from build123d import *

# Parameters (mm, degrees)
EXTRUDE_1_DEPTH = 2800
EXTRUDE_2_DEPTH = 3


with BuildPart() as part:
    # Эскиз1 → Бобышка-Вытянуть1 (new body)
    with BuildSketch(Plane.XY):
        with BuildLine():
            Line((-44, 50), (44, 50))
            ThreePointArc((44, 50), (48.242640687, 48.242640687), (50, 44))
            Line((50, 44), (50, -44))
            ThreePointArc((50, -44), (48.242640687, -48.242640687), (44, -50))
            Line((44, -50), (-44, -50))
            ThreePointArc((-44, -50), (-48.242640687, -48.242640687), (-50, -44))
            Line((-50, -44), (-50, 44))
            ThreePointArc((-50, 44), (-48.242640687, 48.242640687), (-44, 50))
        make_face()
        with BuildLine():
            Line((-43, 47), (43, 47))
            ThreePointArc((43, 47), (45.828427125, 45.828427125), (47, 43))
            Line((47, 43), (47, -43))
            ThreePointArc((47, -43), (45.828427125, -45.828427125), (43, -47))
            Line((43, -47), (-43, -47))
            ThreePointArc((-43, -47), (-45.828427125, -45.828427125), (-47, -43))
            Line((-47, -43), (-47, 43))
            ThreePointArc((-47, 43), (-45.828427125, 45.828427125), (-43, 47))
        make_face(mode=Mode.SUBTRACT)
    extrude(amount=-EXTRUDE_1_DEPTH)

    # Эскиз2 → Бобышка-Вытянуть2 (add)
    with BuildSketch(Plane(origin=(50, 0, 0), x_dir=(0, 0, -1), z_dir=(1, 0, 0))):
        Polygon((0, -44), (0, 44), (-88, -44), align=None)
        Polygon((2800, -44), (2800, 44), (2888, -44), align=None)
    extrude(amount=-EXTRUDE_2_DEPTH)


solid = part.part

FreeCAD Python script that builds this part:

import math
import FreeCAD as App
import Part
import Sketcher

doc = App.newDocument("Part")
params = doc.addObject("Spreadsheet::Sheet", "Params")
for row, (alias, value) in enumerate([
    ("sketch1_radius", "6 mm"),
    ("sketch1_radius2", "4 mm"),
    ("sketch1_width", "88 mm"),
    ("sketch1_width2", "86 mm"),
    ("pad1_length", "2800 mm"),
    ("sketch2_width", "88 mm"),
    ("pad2_length", "3 mm"),
], start=1):
    params.set(f"A{row}", alias)
    params.set(f"B{row}", "=" + value)
    params.setAlias(f"B{row}", alias)

body = doc.addObject("PartDesign::Body", "Body")

sketch1 = body.newObject("Sketcher::SketchObject", "Sketch")
sketch1.AttachmentSupport = (doc.getObject("XY_Plane"), [""])
sketch1.MapMode = "FlatFace"
sketch1.addGeometry(Part.LineSegment(App.Vector(44, 50, 0), App.Vector(-44, 50, 0)), False)
sketch1.addGeometry(Part.ArcOfCircle(Part.Circle(App.Vector(-44, 44, 0), App.Vector(0, 0, 1), 6), math.radians(90), math.radians(180)), False)
sketch1.addGeometry(Part.LineSegment(App.Vector(-50, 44, 0), App.Vector(-50, -44, 0)), False)
sketch1.addGeometry(Part.ArcOfCircle(Part.Circle(App.Vector(-44, -44, 0), App.Vector(0, 0, 1), 6), math.radians(180), math.radians(270)), False)
sketch1.addGeometry(Part.LineSegment(App.Vector(-44, -50, 0), App.Vector(44, -50, 0)), False)
sketch1.addGeometry(Part.ArcOfCircle(Part.Circle(App.Vector(44, -44, 0), App.Vector(0, 0, 1), 6), math.radians(-90), math.radians(0)), False)
sketch1.addGeometry(Part.LineSegment(App.Vector(50, -44, 0), App.Vector(50, 44, 0)), False)
sketch1.addGeometry(Part.ArcOfCircle(Part.Circle(App.Vector(44, 44, 0), App.Vector(0, 0, 1), 6), math.radians(0), math.radians(90)), False)
sketch1.addGeometry(Part.LineSegment(App.Vector(-43, 47, 0), App.Vector(43, 47, 0)), False)
sketch1.addGeometry(Part.ArcOfCircle(Part.Circle(App.Vector(43, 43, 0), App.Vector(0, 0, 1), 4), math.radians(0), math.radians(90)), False)
sketch1.addGeometry(Part.LineSegment(App.Vector(47, 43, 0), App.Vector(47, -43, 0)), False)
sketch1.addGeometry(Part.ArcOfCircle(Part.Circle(App.Vector(43, -43, 0), App.Vector(0, 0, 1), 4), math.radians(-90), math.radians(0)), False)
sketch1.addGeometry(Part.LineSegment(App.Vector(43, -47, 0), App.Vector(-43, -47, 0)), False)
sketch1.addGeometry(Part.ArcOfCircle(Part.Circle(App.Vector(-43, -43, 0), App.Vector(0, 0, 1), 4), math.radians(180), math.radians(270)), False)
sketch1.addGeometry(Part.LineSegment(App.Vector(-47, -43, 0), App.Vector(-47, 43, 0)), False)
sketch1.addGeometry(Part.ArcOfCircle(Part.Circle(App.Vector(-43, 43, 0), App.Vector(0, 0, 1), 4), math.radians(90), math.radians(180)), False)
sketch1.addConstraint(Sketcher.Constraint("Tangent", 0, 2, 1, 1))
sketch1.addConstraint(Sketcher.Constraint("Tangent", 1, 2, 2, 1))
sketch1.addConstraint(Sketcher.Constraint("Tangent", 2, 2, 3, 1))
sketch1.addConstraint(Sketcher.Constraint("Tangent", 3, 2, 4, 1))
sketch1.addConstraint(Sketcher.Constraint("Tangent", 4, 2, 5, 1))
sketch1.addConstraint(Sketcher.Constraint("Tangent", 5, 2, 6, 1))
sketch1.addConstraint(Sketcher.Constraint("Tangent", 6, 2, 7, 1))
sketch1.addConstraint(Sketcher.Constraint("Tangent", 7, 2, 0, 1))
sketch1.addConstraint(Sketcher.Constraint("Tangent", 8, 2, 9, 2))
sketch1.addConstraint(Sketcher.Constraint("Tangent", 9, 1, 10, 1))
sketch1.addConstraint(Sketcher.Constraint("Tangent", 10, 2, 11, 2))
sketch1.addConstraint(Sketcher.Constraint("Tangent", 11, 1, 12, 1))
sketch1.addConstraint(Sketcher.Constraint("Tangent", 12, 2, 13, 2))
sketch1.addConstraint(Sketcher.Constraint("Tangent", 13, 1, 14, 1))
sketch1.addConstraint(Sketcher.Constraint("Tangent", 14, 2, 15, 2))
sketch1.addConstraint(Sketcher.Constraint("Tangent", 15, 1, 8, 1))
sketch1.addConstraint(Sketcher.Constraint("Horizontal", 0))
sketch1.addConstraint(Sketcher.Constraint("Vertical", 2))
sketch1.addConstraint(Sketcher.Constraint("Horizontal", 4))
sketch1.addConstraint(Sketcher.Constraint("Vertical", 6))
sketch1.addConstraint(Sketcher.Constraint("Horizontal", 8))
sketch1.addConstraint(Sketcher.Constraint("Vertical", 10))
sketch1.addConstraint(Sketcher.Constraint("Horizontal", 12))
sketch1.addConstraint(Sketcher.Constraint("Vertical", 14))
sketch1.addConstraint(Sketcher.Constraint("Equal", 1, 3))
sketch1.addConstraint(Sketcher.Constraint("Equal", 3, 5))
sketch1.addConstraint(Sketcher.Constraint("Equal", 5, 7))
sketch1.addConstraint(Sketcher.Constraint("Equal", 9, 11))
sketch1.addConstraint(Sketcher.Constraint("Equal", 11, 13))
sketch1.addConstraint(Sketcher.Constraint("Equal", 13, 15))
sketch1.addConstraint(Sketcher.Constraint("Symmetric", 1, 3, 5, 3, -1, 1))
sketch1.addConstraint(Sketcher.Constraint("Symmetric", 9, 3, 13, 3, -1, 1))
sketch1.addConstraint(Sketcher.Constraint("Equal", 4, 2))
sketch1.addConstraint(Sketcher.Constraint("Equal", 12, 10))
sketch1.addConstraint(Sketcher.Constraint("Radius", 1, 6.0))
sketch1.addConstraint(Sketcher.Constraint("Radius", 9, 4.0))
sketch1.addConstraint(Sketcher.Constraint("DistanceX", 0, 2, 0, 1, 88.0))
sketch1.addConstraint(Sketcher.Constraint("DistanceX", 8, 1, 8, 2, 86.0))
sketch1.setExpression("Constraints[34]", "Params.sketch1_radius")
sketch1.setExpression("Constraints[35]", "Params.sketch1_radius2")
sketch1.setExpression("Constraints[36]", "Params.sketch1_width")
sketch1.setExpression("Constraints[37]", "Params.sketch1_width2")
pad1 = body.newObject("PartDesign::Pad", "Pad")
pad1.Profile = sketch1
pad1.setExpression("Length", "Params.pad1_length")
pad1.Reversed = True

sketch2 = body.newObject("Sketcher::SketchObject", "Sketch001")
sketch2.AttachmentSupport = (doc.getObject("YZ_Plane"), [""])
sketch2.MapMode = "FlatFace"
sketch2.AttachmentOffset = App.Placement(App.Vector(0, 0, 50), App.Rotation())
sketch2.addGeometry(Part.LineSegment(App.Vector(-44, 0, 0), App.Vector(44, 0, 0)), False)
sketch2.addGeometry(Part.LineSegment(App.Vector(44, 0, 0), App.Vector(-44, 88, 0)), False)
sketch2.addGeometry(Part.LineSegment(App.Vector(-44, 88, 0), App.Vector(-44, 0, 0)), False)
sketch2.addGeometry(Part.LineSegment(App.Vector(44, -2800, 0), App.Vector(-44, -2800, 0)), False)
sketch2.addGeometry(Part.LineSegment(App.Vector(-44, -2800, 0), App.Vector(-44, -2888, 0)), False)
sketch2.addGeometry(Part.LineSegment(App.Vector(-44, -2888, 0), App.Vector(44, -2800, 0)), False)
sketch2.addConstraint(Sketcher.Constraint("Coincident", 0, 2, 1, 1))
sketch2.addConstraint(Sketcher.Constraint("Coincident", 1, 2, 2, 1))
sketch2.addConstraint(Sketcher.Constraint("Coincident", 2, 2, 0, 1))
sketch2.addConstraint(Sketcher.Constraint("Coincident", 3, 2, 4, 1))
sketch2.addConstraint(Sketcher.Constraint("Coincident", 4, 2, 5, 1))
sketch2.addConstraint(Sketcher.Constraint("Coincident", 5, 2, 3, 1))
sketch2.addConstraint(Sketcher.Constraint("Horizontal", 0))
sketch2.addConstraint(Sketcher.Constraint("Vertical", 2))
sketch2.addConstraint(Sketcher.Constraint("Horizontal", 3))
sketch2.addConstraint(Sketcher.Constraint("Vertical", 4))
sketch2.addConstraint(Sketcher.Constraint("Symmetric", 0, 2, 2, 2, -1, 1))
sketch2.addConstraint(Sketcher.Constraint("Perpendicular", 1, 5))
sketch2.addConstraint(Sketcher.Constraint("Vertical", 2, 2, 3, 2))
sketch2.addConstraint(Sketcher.Constraint("Vertical", 0, 2, 5, 2))
sketch2.addConstraint(Sketcher.Constraint("Equal", 3, 2))
sketch2.addConstraint(Sketcher.Constraint("DistanceX", 0, 1, 0, 2, 88.0))
sketch2.addConstraint(Sketcher.Constraint("DistanceY", 3, 2, -1, 1, 2800.0))
sketch2.setExpression("Constraints[15]", "Params.sketch2_width")
pad2 = body.newObject("PartDesign::Pad", "Pad001")
pad2.Profile = sketch2
pad2.setExpression("Length", "Params.pad2_length")
pad2.Reversed = True

doc.recompute()
